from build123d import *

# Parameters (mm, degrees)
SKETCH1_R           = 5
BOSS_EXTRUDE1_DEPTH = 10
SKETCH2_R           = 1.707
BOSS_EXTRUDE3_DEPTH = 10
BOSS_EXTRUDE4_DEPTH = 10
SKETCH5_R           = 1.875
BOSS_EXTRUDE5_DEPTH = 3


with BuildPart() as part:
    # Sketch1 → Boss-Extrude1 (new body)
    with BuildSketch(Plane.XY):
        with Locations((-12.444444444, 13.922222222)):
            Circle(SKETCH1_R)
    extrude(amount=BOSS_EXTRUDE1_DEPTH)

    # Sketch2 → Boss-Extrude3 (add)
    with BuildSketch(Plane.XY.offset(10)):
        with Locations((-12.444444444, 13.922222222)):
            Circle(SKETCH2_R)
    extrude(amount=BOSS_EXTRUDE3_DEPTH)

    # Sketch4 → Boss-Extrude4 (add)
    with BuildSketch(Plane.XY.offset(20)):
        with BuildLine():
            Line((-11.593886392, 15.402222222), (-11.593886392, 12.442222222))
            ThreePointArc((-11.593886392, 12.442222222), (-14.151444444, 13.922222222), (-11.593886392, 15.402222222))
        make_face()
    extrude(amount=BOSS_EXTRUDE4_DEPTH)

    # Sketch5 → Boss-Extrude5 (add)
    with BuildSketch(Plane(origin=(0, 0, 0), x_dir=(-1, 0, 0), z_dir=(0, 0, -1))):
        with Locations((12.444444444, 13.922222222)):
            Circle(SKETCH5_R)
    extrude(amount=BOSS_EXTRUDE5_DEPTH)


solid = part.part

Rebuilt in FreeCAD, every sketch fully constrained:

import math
import FreeCAD as App
import Part
import Sketcher

V = App.Vector
Q = App.Units.Quantity

doc = App.newDocument("Part")
body = doc.addObject("PartDesign::Body", "Body")

sketch1 = body.newObject("Sketcher::SketchObject", "Sketch")
sketch1.AttachmentSupport = (doc.getObject("XY_Plane"), [""])
sketch1.MapMode = "FlatFace"
sketch1.addGeometry(Part.Circle(V(-12, 14, 0), V(0, 0, 1), 5), False)
sketch1.addConstraint(Sketcher.Constraint("Diameter", 0, Q("10 mm")))
sketch1.addConstraint(Sketcher.Constraint("DistanceX", 0, 3, -1, 1, Q("12.444444 mm")))
sketch1.addConstraint(Sketcher.Constraint("DistanceY", -1, 1, 0, 3, Q("13.922222 mm")))
pad1 = body.newObject("PartDesign::Pad", "Pad")
pad1.Profile = sketch1
pad1.Length = 10

sketch2 = body.newObject("Sketcher::SketchObject", "Sketch001")
sketch2.AttachmentSupport = (doc.getObject("XY_Plane"), [""])
sketch2.MapMode = "FlatFace"
sketch2.AttachmentOffset = App.Placement(V(0, 0, 10), App.Rotation())
sketch2.addGeometry(Part.Circle(V(-12.4, 13.9, 0), V(0, 0, 1), 1.7), False)
sketch2.addConstraint(Sketcher.Constraint("Diameter", 0, Q("3.414 mm")))
sketch2.addConstraint(Sketcher.Constraint("DistanceX", 0, 3, -1, 1, Q("12.444444 mm")))
sketch2.addConstraint(Sketcher.Constraint("DistanceY", -1, 1, 0, 3, Q("13.922222 mm")))
pad2 = body.newObject("PartDesign::Pad", "Pad001")
pad2.Profile = sketch2
pad2.Length = 10

sketch3 = body.newObject("Sketcher::SketchObject", "Sketch002")
sketch3.AttachmentSupport = (doc.getObject("XY_Plane"), [""])
sketch3.MapMode = "FlatFace"
sketch3.AttachmentOffset = App.Placement(V(0, 0, 20), App.Rotation())
sketch3.addGeometry(Part.LineSegment(V(-11.6, 12.4, 0), V(-11.6, 15.4, 0)), False)
sketch3.addGeometry(Part.ArcOfCircle(Part.Circle(V(-12.4, 13.9, 0), V(0, 0, 1), 1.7), math.radians(60), math.radians(300)), False)
sketch3.addConstraint(Sketcher.Constraint("Coincident", 0, 1, 1, 2))
sketch3.addConstraint(Sketcher.Constraint("Coincident", 1, 1, 0, 2))
sketch3.addConstraint(Sketcher.Constraint("Vertical", 0))
sketch3.addConstraint(Sketcher.Constraint("Radius", 1, Q("1.707 mm")))
sketch3.addConstraint(Sketcher.Constraint("DistanceY", 0, 1, 0, 2, Q("2.96 mm")))
sketch3.addConstraint(Sketcher.Constraint("DistanceX", 1, 3, -1, 1, Q("12.444444 mm")))
sketch3.addConstraint(Sketcher.Constraint("DistanceY", -1, 1, 1, 3, Q("13.922222 mm")))
pad3 = body.newObject("PartDesign::Pad", "Pad002")
pad3.Profile = sketch3
pad3.Length = 10

sketch4 = body.newObject("Sketcher::SketchObject", "Sketch003")
sketch4.AttachmentSupport = (doc.getObject("XY_Plane"), [""])
sketch4.MapMode = "FlatFace"
sketch4.addGeometry(Part.Circle(V(-12.4, 13.9, 0), V(0, 0, 1), 1.9), False)
sketch4.addConstraint(Sketcher.Constraint("Diameter", 0, Q("3.75 mm")))
sketch4.addConstraint(Sketcher.Constraint("DistanceX", 0, 3, -1, 1, Q("12.444444 mm")))
sketch4.addConstraint(Sketcher.Constraint("DistanceY", -1, 1, 0, 3, Q("13.922222 mm")))
pad4 = body.newObject("PartDesign::Pad", "Pad003")
pad4.Profile = sketch4
pad4.Length = 3
pad4.Reversed = True

doc.recompute()
